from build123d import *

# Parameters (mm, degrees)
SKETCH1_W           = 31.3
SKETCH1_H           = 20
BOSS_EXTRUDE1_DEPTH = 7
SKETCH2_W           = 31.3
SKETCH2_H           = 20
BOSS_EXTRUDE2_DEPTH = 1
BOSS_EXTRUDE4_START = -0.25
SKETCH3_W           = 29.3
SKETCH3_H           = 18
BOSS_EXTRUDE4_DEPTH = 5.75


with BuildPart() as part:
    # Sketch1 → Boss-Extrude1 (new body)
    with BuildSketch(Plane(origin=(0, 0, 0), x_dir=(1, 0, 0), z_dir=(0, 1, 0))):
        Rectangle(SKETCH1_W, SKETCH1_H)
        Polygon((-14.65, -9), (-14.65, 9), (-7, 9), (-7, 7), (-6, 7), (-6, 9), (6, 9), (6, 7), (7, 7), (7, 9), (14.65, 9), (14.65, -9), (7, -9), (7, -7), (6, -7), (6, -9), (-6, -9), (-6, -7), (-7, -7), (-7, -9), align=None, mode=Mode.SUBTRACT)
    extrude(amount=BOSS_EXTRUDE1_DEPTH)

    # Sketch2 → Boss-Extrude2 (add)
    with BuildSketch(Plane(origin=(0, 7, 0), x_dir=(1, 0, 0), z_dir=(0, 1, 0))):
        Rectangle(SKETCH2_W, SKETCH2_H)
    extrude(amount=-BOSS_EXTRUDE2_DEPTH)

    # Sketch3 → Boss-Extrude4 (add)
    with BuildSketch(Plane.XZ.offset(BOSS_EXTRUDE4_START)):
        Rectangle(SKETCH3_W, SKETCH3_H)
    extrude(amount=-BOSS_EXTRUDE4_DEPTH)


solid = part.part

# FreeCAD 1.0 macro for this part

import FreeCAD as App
import Part
import Sketcher

doc = App.newDocument("Part")
body = doc.addObject("PartDesign::Body", "Body")

# Sketch on XZ plane
sketch1 = doc.addObject("Sketcher::SketchObject", "Sketch")
body.addObject(sketch1)
sketch1.AttachmentSupport = (doc.XZ_Plane, [""])
sketch1.MapMode = "FlatFace"
sketch1.addGeometry([
    Part.LineSegment(App.Vector(-15.7, -10, 0), App.Vector(-15.7, 10, 0)),  # 0
    Part.LineSegment(App.Vector(-15.7, 10, 0), App.Vector(15.7, 10, 0)),  # 1
    Part.LineSegment(App.Vector(15.7, 10, 0), App.Vector(15.7, -10, 0)),  # 2
    Part.LineSegment(App.Vector(15.7, -10, 0), App.Vector(-15.7, -10, 0)),  # 3
    Part.LineSegment(App.Vector(-7, 9, 0), App.Vector(-14.7, 9, 0)),  # 4
    Part.LineSegment(App.Vector(-14.7, 9, 0), App.Vector(-14.7, -9, 0)),  # 5
    Part.LineSegment(App.Vector(-14.7, -9, 0), App.Vector(-7, -9, 0)),  # 6
    Part.LineSegment(App.Vector(-7, -9, 0), App.Vector(-7, -7, 0)),  # 7
    Part.LineSegment(App.Vector(-7, -7, 0), App.Vector(-6, -7, 0)),  # 8
    Part.LineSegment(App.Vector(-6, -7, 0), App.Vector(-6, -9, 0)),  # 9
    Part.LineSegment(App.Vector(-6, -9, 0), App.Vector(6, -9, 0)),  # 10
    Part.LineSegment(App.Vector(6, -9, 0), App.Vector(6, -7, 0)),  # 11
    Part.LineSegment(App.Vector(6, -7, 0), App.Vector(7, -7, 0)),  # 12
    Part.LineSegment(App.Vector(7, -7, 0), App.Vector(7, -9, 0)),  # 13
    Part.LineSegment(App.Vector(7, -9, 0), App.Vector(14.7, -9, 0)),  # 14
    Part.LineSegment(App.Vector(14.7, -9, 0), App.Vector(14.7, 9, 0)),  # 15
    Part.LineSegment(App.Vector(14.7, 9, 0), App.Vector(7, 9, 0)),  # 16
    Part.LineSegment(App.Vector(7, 9, 0), App.Vector(7, 7, 0)),  # 17
    Part.LineSegment(App.Vector(7, 7, 0), App.Vector(6, 7, 0)),  # 18
    Part.LineSegment(App.Vector(6, 7, 0), App.Vector(6, 9, 0)),  # 19
    Part.LineSegment(App.Vector(6, 9, 0), App.Vector(-6, 9, 0)),  # 20
    Part.LineSegment(App.Vector(-6, 9, 0), App.Vector(-6, 7, 0)),  # 21
    Part.LineSegment(App.Vector(-6, 7, 0), App.Vector(-7, 7, 0)),  # 22
    Part.LineSegment(App.Vector(-7, 7, 0), App.Vector(-7, 9, 0)),  # 23
], False)
sketch1.addConstraint([
    Sketcher.Constraint("Coincident", 0, 2, 1, 1),
    Sketcher.Constraint("Coincident", 1, 2, 2, 1),
    Sketcher.Constraint("Coincident", 2, 2, 3, 1),
    Sketcher.Constraint("Coincident", 3, 2, 0, 1),
    Sketcher.Constraint("Coincident", 4, 2, 5, 1),
    Sketcher.Constraint("Coincident", 5, 2, 6, 1),
    Sketcher.Constraint("Coincident", 6, 2, 7, 1),
    Sketcher.Constraint("Coincident", 7, 2, 8, 1),
    Sketcher.Constraint("Coincident", 8, 2, 9, 1),
    Sketcher.Constraint("Coincident", 9, 2, 10, 1),
    Sketcher.Constraint("Coincident", 10, 2, 11, 1),
    Sketcher.Constraint("Coincident", 11, 2, 12, 1),
    Sketcher.Constraint("Coincident", 12, 2, 13, 1),
    Sketcher.Constraint("Coincident", 13, 2, 14, 1),
    Sketcher.Constraint("Coincident", 14, 2, 15, 1),
    Sketcher.Constraint("Coincident", 15, 2, 16, 1),
    Sketcher.Constraint("Coincident", 16, 2, 17, 1),
    Sketcher.Constraint("Coincident", 17, 2, 18, 1),
    Sketcher.Constraint("Coincident", 18, 2, 19, 1),
    Sketcher.Constraint("Coincident", 19, 2, 20, 1),
    Sketcher.Constraint("Coincident", 20, 2, 21, 1),
    Sketcher.Constraint("Coincident", 21, 2, 22, 1),
    Sketcher.Constraint("Coincident", 22, 2, 23, 1),
    Sketcher.Constraint("Coincident", 23, 2, 4, 1),
    Sketcher.Constraint("Vertical", 0),
    Sketcher.Constraint("Horizontal", 1),
    Sketcher.Constraint("Vertical", 2),
    Sketcher.Constraint("Horizontal", 3),
    Sketcher.Constraint("Horizontal", 4),
    Sketcher.Constraint("Vertical", 5),
    Sketcher.Constraint("Horizontal", 6),
    Sketcher.Constraint("Vertical", 7),
    Sketcher.Constraint("Horizontal", 8),
    Sketcher.Constraint("Vertical", 9),
    Sketcher.Constraint("Horizontal", 10),
    Sketcher.Constraint("Vertical", 11),
    Sketcher.Constraint("Horizontal", 12),
    Sketcher.Constraint("Vertical", 13),
    Sketcher.Constraint("Horizontal", 14),
    Sketcher.Constraint("Vertical", 15),
    Sketcher.Constraint("Horizontal", 16),
    Sketcher.Constraint("Vertical", 17),
    Sketcher.Constraint("Horizontal", 18),
    Sketcher.Constraint("Vertical", 19),
    Sketcher.Constraint("Horizontal", 20),
    Sketcher.Constraint("Vertical", 21),
    Sketcher.Constraint("Horizontal", 22),
    Sketcher.Constraint("Vertical", 23),
    Sketcher.Constraint("Symmetric", 0, 2, 2, 2, -1, 1),
    Sketcher.Constraint("Symmetric", 4, 2, 14, 2, -1, 1),
    Sketcher.Constraint("Symmetric", 6, 2, 16, 2, -1, 1),
    Sketcher.Constraint("Symmetric", 8, 2, 18, 2, -1, 1),
    Sketcher.Constraint("Symmetric", 10, 2, 20, 2, -1, 1),
    Sketcher.Constraint("Symmetric", 12, 2, 22, 2, -1, 1),
    Sketcher.Constraint("Symmetric", 8, 2, 11, 2, -2),
    Sketcher.Constraint("Symmetric", 6, 2, 13, 2, -2),
    Sketcher.Constraint("Horizontal", 6, 2, 9, 2),
    Sketcher.Constraint("DistanceX", 8, 1, 8, 2, 1.0),
    Sketcher.Constraint("DistanceX", 10, 1, 10, 2, 12.0),
    Sketcher.Constraint("DistanceY", 0, 1, 0, 2, 20.0),
    Sketcher.Constraint("DistanceY", 5, 2, 5, 1, 18.0),
    Sketcher.Constraint("DistanceY", 7, 1, 7, 2, 2.0),
    Sketcher.Constraint("DistanceX", 1, 1, 1, 2, 31.3),
    Sketcher.Constraint("DistanceX", 0, 2, 4, 2, 1.0),
])
pad1 = doc.addObject("PartDesign::Pad", "Pad")
body.addObject(pad1)
pad1.Profile = sketch1
pad1.Length = 7
pad1.Reversed = True

# Sketch on XZ plane
sketch2 = doc.addObject("Sketcher::SketchObject", "Sketch001")
body.addObject(sketch2)
sketch2.AttachmentSupport = (doc.XZ_Plane, [""])
sketch2.MapMode = "FlatFace"
sketch2.AttachmentOffset = App.Placement(App.Vector(0, 0, -7), App.Rotation())
sketch2.addGeometry([
    Part.LineSegment(App.Vector(-16, -10, 0), App.Vector(-16, 10, 0)),
    Part.LineSegment(App.Vector(-16, 10, 0), App.Vector(16, 10, 0)),
    Part.LineSegment(App.Vector(16, 10, 0), App.Vector(16, -10, 0)),
    Part.LineSegment(App.Vector(16, -10, 0), App.Vector(-16, -10, 0)),
], False)
sketch2.addConstraint([
    Sketcher.Constraint("Coincident", 0, 2, 1, 1),
    Sketcher.Constraint("Coincident", 1, 2, 2, 1),
    Sketcher.Constraint("Coincident", 2, 2, 3, 1),
    Sketcher.Constraint("Coincident", 3, 2, 0, 1),
    Sketcher.Constraint("Vertical", 0),
    Sketcher.Constraint("Horizontal", 1),
    Sketcher.Constraint("Vertical", 2),
    Sketcher.Constraint("Horizontal", 3),
    Sketcher.Constraint("Symmetric", 0, 2, 2, 2, -1, 1),
    Sketcher.Constraint("DistanceY", 0, 1, 0, 2, 20.0),
    Sketcher.Constraint("DistanceX", 1, 1, 1, 2, 31.3),
])
pad2 = doc.addObject("PartDesign::Pad", "Pad001")
body.addObject(pad2)
pad2.Profile = sketch2
pad2.Length = 1

# Sketch on XZ plane
sketch3 = doc.addObject("Sketcher::SketchObject", "Sketch002")
body.addObject(sketch3)
sketch3.AttachmentSupport = (doc.XZ_Plane, [""])
sketch3.MapMode = "FlatFace"
sketch3.AttachmentOffset = App.Placement(App.Vector(0, 0, -0.25), App.Rotation())
sketch3.addGeometry([
    Part.LineSegment(App.Vector(-15, 9, 0), App.Vector(-15, -9, 0)),
    Part.LineSegment(App.Vector(-15, -9, 0), App.Vector(15, -9, 0)),
    Part.LineSegment(App.Vector(15, -9, 0), App.Vector(15, 9, 0)),
    Part.LineSegment(App.Vector(15, 9, 0), App.Vector(-15, 9, 0)),
], False)
sketch3.addConstraint([
    Sketcher.Constraint("Coincident", 0, 2, 1, 1),
    Sketcher.Constraint("Coincident", 1, 2, 2, 1),
    Sketcher.Constraint("Coincident", 2, 2, 3, 1),
    Sketcher.Constraint("Coincident", 3, 2, 0, 1),
    Sketcher.Constraint("Vertical", 0),
    Sketcher.Constraint("Horizontal", 1),
    Sketcher.Constraint("Vertical", 2),
    Sketcher.Constraint("Horizontal", 3),
    Sketcher.Constraint("Symmetric", 0, 2, 2, 2, -1, 1),
    Sketcher.Constraint("DistanceY", 0, 2, 0, 1, 18.0),
    Sketcher.Constraint("DistanceX", 1, 1, 1, 2, 29.3),
])
pad3 = doc.addObject("PartDesign::Pad", "Pad002")
body.addObject(pad3)
pad3.Profile = sketch3
pad3.Length = 5.75
pad3.Reversed = True

doc.recompute()
